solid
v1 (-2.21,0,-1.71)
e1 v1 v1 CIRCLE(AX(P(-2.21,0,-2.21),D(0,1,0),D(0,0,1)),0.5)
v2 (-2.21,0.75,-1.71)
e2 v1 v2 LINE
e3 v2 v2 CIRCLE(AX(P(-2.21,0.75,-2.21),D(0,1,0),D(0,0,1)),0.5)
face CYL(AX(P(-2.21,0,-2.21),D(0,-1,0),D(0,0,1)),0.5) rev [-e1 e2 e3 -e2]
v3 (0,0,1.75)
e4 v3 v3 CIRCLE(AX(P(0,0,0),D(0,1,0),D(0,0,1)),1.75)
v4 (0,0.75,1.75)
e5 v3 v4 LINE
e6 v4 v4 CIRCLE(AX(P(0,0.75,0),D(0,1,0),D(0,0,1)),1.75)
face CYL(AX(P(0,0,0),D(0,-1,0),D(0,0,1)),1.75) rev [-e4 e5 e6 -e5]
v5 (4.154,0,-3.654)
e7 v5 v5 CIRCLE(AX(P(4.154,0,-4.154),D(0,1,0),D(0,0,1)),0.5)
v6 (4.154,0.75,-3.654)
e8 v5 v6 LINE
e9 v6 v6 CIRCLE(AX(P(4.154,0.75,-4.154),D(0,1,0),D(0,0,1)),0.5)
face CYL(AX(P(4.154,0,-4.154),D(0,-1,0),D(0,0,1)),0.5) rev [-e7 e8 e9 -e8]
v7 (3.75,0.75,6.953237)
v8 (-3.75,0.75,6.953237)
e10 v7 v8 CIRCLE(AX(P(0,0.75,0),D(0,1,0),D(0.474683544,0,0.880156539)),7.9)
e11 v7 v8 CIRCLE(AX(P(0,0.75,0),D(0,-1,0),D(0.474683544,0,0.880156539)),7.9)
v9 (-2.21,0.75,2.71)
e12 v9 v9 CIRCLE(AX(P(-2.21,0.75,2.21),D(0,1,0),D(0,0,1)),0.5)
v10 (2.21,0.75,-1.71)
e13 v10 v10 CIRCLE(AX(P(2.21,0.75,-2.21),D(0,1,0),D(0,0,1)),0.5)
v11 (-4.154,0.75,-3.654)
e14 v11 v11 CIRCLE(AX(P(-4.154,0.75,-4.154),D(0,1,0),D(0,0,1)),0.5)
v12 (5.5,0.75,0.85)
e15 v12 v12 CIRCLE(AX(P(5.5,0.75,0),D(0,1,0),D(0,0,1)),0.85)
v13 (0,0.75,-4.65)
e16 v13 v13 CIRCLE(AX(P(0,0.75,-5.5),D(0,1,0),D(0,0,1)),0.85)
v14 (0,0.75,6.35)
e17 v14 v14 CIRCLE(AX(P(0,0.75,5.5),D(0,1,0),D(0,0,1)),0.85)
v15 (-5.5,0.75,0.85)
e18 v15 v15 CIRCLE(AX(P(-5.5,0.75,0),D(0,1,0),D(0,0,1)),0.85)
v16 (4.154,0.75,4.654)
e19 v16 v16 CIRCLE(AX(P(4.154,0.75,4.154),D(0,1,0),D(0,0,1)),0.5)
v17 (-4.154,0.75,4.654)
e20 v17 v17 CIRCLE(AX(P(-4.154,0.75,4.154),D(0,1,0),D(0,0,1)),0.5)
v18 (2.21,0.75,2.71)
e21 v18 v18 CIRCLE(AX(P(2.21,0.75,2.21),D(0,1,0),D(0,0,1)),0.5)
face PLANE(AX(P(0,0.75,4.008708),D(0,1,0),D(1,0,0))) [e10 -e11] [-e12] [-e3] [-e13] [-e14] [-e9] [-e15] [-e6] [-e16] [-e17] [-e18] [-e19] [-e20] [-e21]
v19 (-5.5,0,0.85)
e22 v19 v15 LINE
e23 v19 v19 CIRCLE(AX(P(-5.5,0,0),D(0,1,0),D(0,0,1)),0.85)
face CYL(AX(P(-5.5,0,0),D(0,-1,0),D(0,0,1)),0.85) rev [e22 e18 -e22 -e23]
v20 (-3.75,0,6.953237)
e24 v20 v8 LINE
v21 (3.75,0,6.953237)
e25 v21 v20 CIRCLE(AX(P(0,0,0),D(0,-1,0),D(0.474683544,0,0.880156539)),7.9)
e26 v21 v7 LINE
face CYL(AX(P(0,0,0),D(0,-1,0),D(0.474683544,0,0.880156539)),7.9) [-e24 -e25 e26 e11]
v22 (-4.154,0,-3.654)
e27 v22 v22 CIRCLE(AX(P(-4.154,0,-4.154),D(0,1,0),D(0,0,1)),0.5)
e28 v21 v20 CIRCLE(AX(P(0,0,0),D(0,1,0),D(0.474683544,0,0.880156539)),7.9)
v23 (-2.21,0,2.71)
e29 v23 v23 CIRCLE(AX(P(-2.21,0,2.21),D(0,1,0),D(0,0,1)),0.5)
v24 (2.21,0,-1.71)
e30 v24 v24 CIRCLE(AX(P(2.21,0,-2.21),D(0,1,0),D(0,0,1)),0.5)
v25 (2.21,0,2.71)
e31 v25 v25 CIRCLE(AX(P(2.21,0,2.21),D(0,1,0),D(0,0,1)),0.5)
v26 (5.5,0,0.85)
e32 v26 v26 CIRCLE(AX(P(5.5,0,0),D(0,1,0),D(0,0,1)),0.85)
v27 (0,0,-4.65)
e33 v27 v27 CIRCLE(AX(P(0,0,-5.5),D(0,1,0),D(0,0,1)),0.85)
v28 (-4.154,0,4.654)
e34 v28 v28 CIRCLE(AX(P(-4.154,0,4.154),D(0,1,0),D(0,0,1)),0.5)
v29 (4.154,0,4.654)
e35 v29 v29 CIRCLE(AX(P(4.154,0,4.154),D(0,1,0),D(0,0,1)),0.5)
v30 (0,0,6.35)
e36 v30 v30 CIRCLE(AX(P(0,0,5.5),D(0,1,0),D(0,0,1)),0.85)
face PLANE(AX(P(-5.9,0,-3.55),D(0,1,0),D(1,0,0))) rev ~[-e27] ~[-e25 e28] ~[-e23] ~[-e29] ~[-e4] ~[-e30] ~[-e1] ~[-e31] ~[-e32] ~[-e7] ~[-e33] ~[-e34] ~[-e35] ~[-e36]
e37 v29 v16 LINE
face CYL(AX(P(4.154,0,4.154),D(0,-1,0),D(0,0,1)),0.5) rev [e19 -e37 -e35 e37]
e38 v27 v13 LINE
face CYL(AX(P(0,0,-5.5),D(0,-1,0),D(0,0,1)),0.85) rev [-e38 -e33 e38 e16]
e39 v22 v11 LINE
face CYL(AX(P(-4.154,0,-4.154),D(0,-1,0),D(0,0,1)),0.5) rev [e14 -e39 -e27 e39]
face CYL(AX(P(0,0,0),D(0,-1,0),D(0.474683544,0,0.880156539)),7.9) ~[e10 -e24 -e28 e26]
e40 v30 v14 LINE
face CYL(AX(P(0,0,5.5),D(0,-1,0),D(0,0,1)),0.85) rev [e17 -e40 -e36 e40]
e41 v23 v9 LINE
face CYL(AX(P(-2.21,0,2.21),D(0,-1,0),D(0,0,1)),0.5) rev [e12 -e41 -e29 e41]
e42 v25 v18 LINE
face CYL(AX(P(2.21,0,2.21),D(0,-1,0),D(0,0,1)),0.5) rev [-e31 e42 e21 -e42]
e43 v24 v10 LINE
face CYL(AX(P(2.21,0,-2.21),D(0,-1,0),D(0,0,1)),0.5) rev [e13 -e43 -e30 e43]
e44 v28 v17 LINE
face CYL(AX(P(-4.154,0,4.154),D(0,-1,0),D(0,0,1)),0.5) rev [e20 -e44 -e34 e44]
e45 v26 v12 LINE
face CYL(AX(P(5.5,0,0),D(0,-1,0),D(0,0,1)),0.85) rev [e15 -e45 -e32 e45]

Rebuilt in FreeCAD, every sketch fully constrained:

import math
import FreeCAD as App
import Part
import Sketcher

V = App.Vector

doc = App.newDocument("Part")
body = doc.addObject("PartDesign::Body", "Body")

# Sketch on XZ plane
sketch1 = doc.addObject("Sketcher::SketchObject", "Sketch")
body.addObject(sketch1)
sketch1.AttachmentSupport = (doc.XZ_Plane, [""])
sketch1.MapMode = "FlatFace"
sketch1.addGeometry([
    Part.LineSegment(V(-3.75, 6.95, 0), V(-3.75, 14.65, 0)),  # 0
    Part.LineSegment(V(-3.75, 14.65, 0), V(3.75, 14.65, 0)),  # 1
    Part.LineSegment(V(3.75, 14.65, 0), V(3.75, 6.95, 0)),  # 2
    Part.ArcOfCircle(Part.Circle(V(0, 0, 0), V(0, 0, 1), 7.9), math.radians(118), math.radians(422)),  # 3
    Part.Circle(V(-1.5, 10.75, 0), V(0, 0, 1), 0.25),  # 4
    Part.Circle(V(-1, 8.75, 0), V(0, 0, 1), 0.25),  # 5
    Part.Circle(V(-4.15, 4.15, 0), V(0, 0, 1), 0.5),  # 6
    Part.Circle(V(1.5, 10.75, 0), V(0, 0, 1), 0.25),  # 7
    Part.Circle(V(0, 9.75, 0), V(0, 0, 1), 0.25),  # 8
    Part.Circle(V(0, 7.75, 0), V(0, 0, 1), 0.25),  # 9
    Part.Circle(V(1, 8.75, 0), V(0, 0, 1), 0.25),  # 10
    Part.Circle(V(0, 5.5, 0), V(0, 0, 1), 0.85),  # 11
    Part.Circle(V(4.15, 4.15, 0), V(0, 0, 1), 0.5),  # 12
    Part.Circle(V(-5.5, 0, 0), V(0, 0, 1), 0.85),  # 13
    Part.Circle(V(-2.21, 2.21, 0), V(0, 0, 1), 0.5),  # 14
    Part.Circle(V(-3, 0, 0), V(0, 0, 1), 0.25),  # 15
    Part.Circle(V(-6.2, -2.25, 0), V(0, 0, 1), 0.25),  # 16
    Part.Circle(V(-5.9, -3.55, 0), V(0, 0, 1), 0.25),  # 17
    Part.Circle(V(-4.15, -4.15, 0), V(0, 0, 1), 0.5),  # 18
    Part.Circle(V(-2.21, -2.21, 0), V(0, 0, 1), 0.5),  # 19
    Part.Circle(V(2.21, 2.21, 0), V(0, 0, 1), 0.5),  # 20
    Part.Circle(V(0, 0, 0), V(0, 0, 1), 1.75),  # 21
    Part.Circle(V(3, 0, 0), V(0, 0, 1), 0.25),  # 22
    Part.Circle(V(5.5, 0, 0), V(0, 0, 1), 0.85),  # 23
    Part.Circle(V(2.21, -2.21, 0), V(0, 0, 1), 0.5),  # 24
    Part.Circle(V(0, -5.5, 0), V(0, 0, 1), 0.85),  # 25
    Part.Circle(V(4.15, -4.15, 0), V(0, 0, 1), 0.5),  # 26
    Part.Circle(V(6.2, -2.25, 0), V(0, 0, 1), 0.25),  # 27
    Part.Circle(V(5.9, -3.55, 0), V(0, 0, 1), 0.25),  # 28
], False)
sketch1.addConstraint([
    Sketcher.Constraint("Coincident", 0, 2, 1, 1),
    Sketcher.Constraint("Coincident", 1, 2, 2, 1),
    Sketcher.Constraint("Coincident", 2, 2, 3, 2),
    Sketcher.Constraint("Coincident", 3, 1, 0, 1),
    Sketcher.Constraint("Vertical", 0),
    Sketcher.Constraint("Horizontal", 1),
    Sketcher.Constraint("Vertical", 2),
    Sketcher.Constraint("Coincident", 3, 3, -1, 1),
    Sketcher.Constraint("Coincident", 21, 3, -1, 1),
    Sketcher.Constraint("Equal", 4, 5),
    Sketcher.Constraint("Equal", 5, 7),
    Sketcher.Constraint("Equal", 7, 8),
    Sketcher.Constraint("Equal", 8, 9),
    Sketcher.Constraint("Equal", 9, 10),
    Sketcher.Constraint("Equal", 6, 12),
    Sketcher.Constraint("Equal", 11, 13),
    Sketcher.Constraint("Equal", 12, 14),
    Sketcher.Constraint("Equal", 10, 15),
    Sketcher.Constraint("Equal", 15, 16),
    Sketcher.Constraint("Equal", 16, 17),
    Sketcher.Constraint("Equal", 14, 18),
    Sketcher.Constraint("Equal", 18, 19),
    Sketcher.Constraint("Equal", 19, 20),
    Sketcher.Constraint("Equal", 17, 22),
    Sketcher.Constraint("Equal", 13, 23),
    Sketcher.Constraint("Equal", 20, 24),
    Sketcher.Constraint("Equal", 23, 25),
    Sketcher.Constraint("Equal", 24, 26),
    Sketcher.Constraint("Equal", 22, 27),
    Sketcher.Constraint("Equal", 27, 28),
    Sketcher.Constraint("Symmetric", 12, 3, 18, 3, -1, 1),
    Sketcher.Constraint("Symmetric", 19, 3, 20, 3, -1, 1),
    Sketcher.Constraint("Symmetric", 15, 3, 22, 3, -1, 1),
    Sketcher.Constraint("Symmetric", 13, 3, 23, 3, -1, 1),
    Sketcher.Constraint("Symmetric", 14, 3, 24, 3, -1, 1),
    Sketcher.Constraint("Symmetric", 11, 3, 25, 3, -1, 1),
    Sketcher.Constraint("Symmetric", 6, 3, 26, 3, -1, 1),
    Sketcher.Constraint("Symmetric", 4, 3, 7, 3, -2),
    Sketcher.Constraint("Symmetric", 5, 3, 10, 3, -2),
    Sketcher.Constraint("Symmetric", 6, 3, 12, 3, -2),
    Sketcher.Constraint("Symmetric", 14, 3, 20, 3, -2),
    Sketcher.Constraint("Symmetric", 16, 3, 27, 3, -2),
    Sketcher.Constraint("Symmetric", 17, 3, 28, 3, -2),
    Sketcher.Constraint("PointOnObject", 8, 3, -2),
    Sketcher.Constraint("PointOnObject", 9, 3, -2),
    Sketcher.Constraint("PointOnObject", 11, 3, -2),
    Sketcher.Constraint("PointOnObject", 13, 3, -1),
    Sketcher.Constraint("PointOnObject", 15, 3, -1),
    Sketcher.Constraint("Horizontal", 2, 2, 3, 1),
    Sketcher.Constraint("Diameter", 6, 1.0),
    Sketcher.Constraint("Diameter", 4, 0.5),
    Sketcher.Constraint("Diameter", 11, 1.7),
    Sketcher.Constraint("Diameter", 21, 3.5),
    Sketcher.Constraint("Radius", 3, 7.9),
    Sketcher.Constraint("DistanceX", 1, 1, 1, 2, 7.5),
    Sketcher.Constraint("DistanceX", 5, 3, -1, 1, 1.0),
    Sketcher.Constraint("DistanceX", 15, 3, -1, 1, 3.0),
    Sketcher.Constraint("DistanceY", 5, 3, 4, 3, 2.0),
    Sketcher.Constraint("DistanceX", 4, 3, 7, 3, 3.0),
    Sketcher.Constraint("DistanceY", 5, 3, 8, 3, 1.0),
    Sketcher.Constraint("DistanceY", 9, 3, 5, 3, 1.0),
    Sketcher.Constraint("DistanceY", -1, 1, 11, 3, 5.5),
    Sketcher.Constraint("DistanceX", 13, 3, -1, 1, 5.5),
    Sketcher.Constraint("DistanceX", 16, 3, -1, 1, 6.2),
    Sketcher.Constraint("DistanceX", 17, 3, -1, 1, 5.9),
    Sketcher.Constraint("DistanceY", 17, 3, 16, 3, 1.3),
    Sketcher.Constraint("DistanceY", 4, 3, 0, 2, 3.9),
    Sketcher.Constraint("DistanceY", -1, 1, 4, 3, 10.75),
    Sketcher.Constraint("DistanceX", 14, 3, -1, 1, 2.21),
    Sketcher.Constraint("DistanceY", -1, 1, 14, 3, 2.21),
    Sketcher.Constraint("DistanceY", 16, 3, -1, 1, 2.25),
    Sketcher.Constraint("DistanceX", 6, 3, -1, 1, 4.154),
    Sketcher.Constraint("DistanceY", -1, 1, 6, 3, 4.154),
])
pad1 = doc.addObject("PartDesign::Pad", "Pad")
body.addObject(pad1)
pad1.Profile = sketch1
pad1.Length = 0.75
pad1.Reversed = True

# Sketch on XZ plane
sketch2 = doc.addObject("Sketcher::SketchObject", "Sketch001")
body.addObject(sketch2)
sketch2.AttachmentSupport = (doc.XZ_Plane, [""])
sketch2.MapMode = "FlatFace"
sketch2.addGeometry([
    Part.Circle(V(-5.9, -3.55, 0), V(0, 0, 1), 0.25),  # 0
    Part.Circle(V(-6.2, -2.25, 0), V(0, 0, 1), 0.25),  # 1
    Part.Circle(V(5.9, -3.55, 0), V(0, 0, 1), 0.25),  # 2
    Part.Circle(V(6.2, -2.25, 0), V(0, 0, 1), 0.25),  # 3
    Part.Circle(V(3, 0, 0), V(0, 0, 1), 0.25),  # 4
    Part.Circle(V(-3, 0, 0), V(0, 0, 1), 0.29),  # 5
    Part.Circle(V(0, 7.75, 0), V(0, 0, 1), 0.25),  # 6
], False)
sketch2.addConstraint([
    Sketcher.Constraint("Equal", 0, 1),
    Sketcher.Constraint("Equal", 1, 2),
    Sketcher.Constraint("Equal", 2, 3),
    Sketcher.Constraint("Equal", 3, 4),
    Sketcher.Constraint("Equal", 4, 6),
    Sketcher.Constraint("Symmetric", 4, 3, 5, 3, -1, 1),
    Sketcher.Constraint("Symmetric", 0, 3, 2, 3, -2),
    Sketcher.Constraint("Symmetric", 1, 3, 3, 3, -2),
    Sketcher.Constraint("PointOnObject", 4, 3, -1),
    Sketcher.Constraint("PointOnObject", 6, 3, -2),
    Sketcher.Constraint("Diameter", 0, 0.5),
    Sketcher.Constraint("DistanceX", -1, 1, 4, 3, 3.0),
    Sketcher.Constraint("DistanceY", 1, 3, 6, 3, 10.0),
    Sketcher.Constraint("DistanceX", 0, 3, -1, 1, 5.9),
    Sketcher.Constraint("DistanceX", 1, 3, -1, 1, 6.2),
    Sketcher.Constraint("DistanceY", 0, 3, 1, 3, 1.3),
    Sketcher.Constraint("DistanceY", 0, 3, -1, 1, 3.55),
    Sketcher.Constraint("Diameter", 5, 0.578226),
])
pad2 = doc.addObject("PartDesign::Pad", "Pad001")
body.addObject(pad2)
pad2.Profile = sketch2
pad2.Length = 0.75
pad2.Reversed = True

# Sketch on XZ plane
sketch3 = doc.addObject("Sketcher::SketchObject", "Sketch002")
body.addObject(sketch3)
sketch3.AttachmentSupport = (doc.XZ_Plane, [""])
sketch3.MapMode = "FlatFace"
sketch3.addGeometry([
    Part.ArcOfCircle(Part.Circle(V(0, 0, 0), V(0, 0, 1), 8), math.radians(62), math.radians(118)),
    Part.LineSegment(V(-4, 7, 0), V(-4, 15, 0)),
    Part.LineSegment(V(-4, 15, 0), V(4, 15, 0)),
    Part.LineSegment(V(4, 15, 0), V(4, 7, 0)),
], False)
sketch3.addConstraint([
    Sketcher.Constraint("Coincident", 0, 2, 1, 1),
    Sketcher.Constraint("Coincident", 1, 2, 2, 1),
    Sketcher.Constraint("Coincident", 2, 2, 3, 1),
    Sketcher.Constraint("Coincident", 3, 2, 0, 1),
    Sketcher.Constraint("Vertical", 1),
    Sketcher.Constraint("Horizontal", 2),
    Sketcher.Constraint("Vertical", 3),
    Sketcher.Constraint("Coincident", 0, 3, -1, 1),
    Sketcher.Constraint("Horizontal", 0, 2, 3, 2),
    Sketcher.Constraint("Radius", 0, 7.9),
    Sketcher.Constraint("DistanceX", 2, 1, 2, 2, 7.5),
    Sketcher.Constraint("DistanceY", -1, 1, 1, 2, 14.65),
])
pocket1 = doc.addObject("PartDesign::Pocket", "Pocket")
body.addObject(pocket1)
pocket1.Profile = sketch3
pocket1.Length = 0.75

doc.recompute()
